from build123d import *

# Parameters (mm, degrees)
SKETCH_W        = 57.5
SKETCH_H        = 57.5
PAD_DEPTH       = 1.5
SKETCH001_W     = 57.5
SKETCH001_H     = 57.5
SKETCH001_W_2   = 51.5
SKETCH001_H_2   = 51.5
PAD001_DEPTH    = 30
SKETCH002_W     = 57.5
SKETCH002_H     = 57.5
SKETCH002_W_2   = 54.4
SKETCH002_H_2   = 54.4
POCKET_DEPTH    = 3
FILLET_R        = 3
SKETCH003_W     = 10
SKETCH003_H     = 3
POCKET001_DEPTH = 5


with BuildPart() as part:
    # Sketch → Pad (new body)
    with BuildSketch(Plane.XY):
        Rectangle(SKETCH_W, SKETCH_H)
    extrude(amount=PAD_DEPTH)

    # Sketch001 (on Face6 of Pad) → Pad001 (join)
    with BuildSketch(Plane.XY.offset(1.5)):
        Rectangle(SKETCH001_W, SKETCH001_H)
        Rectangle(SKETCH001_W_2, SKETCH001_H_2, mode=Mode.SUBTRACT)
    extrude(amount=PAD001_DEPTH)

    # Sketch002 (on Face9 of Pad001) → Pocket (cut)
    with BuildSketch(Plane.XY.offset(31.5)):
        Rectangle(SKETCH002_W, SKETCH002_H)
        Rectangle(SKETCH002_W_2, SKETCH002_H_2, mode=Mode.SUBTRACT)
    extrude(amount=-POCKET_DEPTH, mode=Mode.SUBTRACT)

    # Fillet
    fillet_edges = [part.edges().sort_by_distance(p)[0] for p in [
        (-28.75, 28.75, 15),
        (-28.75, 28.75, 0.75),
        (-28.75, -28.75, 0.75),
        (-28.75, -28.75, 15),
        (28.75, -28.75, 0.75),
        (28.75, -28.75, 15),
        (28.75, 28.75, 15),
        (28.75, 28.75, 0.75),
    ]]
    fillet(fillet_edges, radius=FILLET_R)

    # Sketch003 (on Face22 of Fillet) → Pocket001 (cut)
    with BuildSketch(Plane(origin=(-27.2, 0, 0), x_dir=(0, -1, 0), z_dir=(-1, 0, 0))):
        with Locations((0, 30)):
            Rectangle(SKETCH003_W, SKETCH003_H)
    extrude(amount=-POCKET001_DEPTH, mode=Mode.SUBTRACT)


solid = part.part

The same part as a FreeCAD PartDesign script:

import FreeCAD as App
import Part
import Sketcher
Q = App.Units.Quantity


def edges_at(feature, points):
    """Names of the edges that pass closest to the given points."""
    edges = feature.Shape.Edges
    near = lambda p: min(range(len(edges)), key=lambda i: edges[i].distToShape(Part.Vertex(*p))[0])
    return sorted({f"Edge{near(p) + 1}" for p in points})


def add_polygon(sketch, points):
    """Adds a closed chain of lines whose ends are joined by coincident constraints."""
    first, n = sketch.GeometryCount, len(points)
    for a, b in zip(points, points[1:] + points[:1]):
        sketch.addGeometry(Part.LineSegment(App.Vector(*a, 0), App.Vector(*b, 0)), False)
    for i in range(n):
        sketch.addConstraint(Sketcher.Constraint("Coincident", first + i, 2, first + (i + 1) % n, 1))

doc = App.newDocument("Part")
body = doc.addObject("PartDesign::Body", "Body")

sketch1 = doc.addObject("Sketcher::SketchObject", "Sketch")
body.addObject(sketch1)
sketch1.AttachmentSupport = (doc.XY_Plane, [""])
sketch1.MapMode = "FlatFace"
add_polygon(sketch1, [(-29, 29), (-29, -29), (29, -29), (29, 29)])
sketch1.addConstraint([
    Sketcher.Constraint("Vertical", 0),
    Sketcher.Constraint("Horizontal", 1),
    Sketcher.Constraint("Vertical", 2),
    Sketcher.Constraint("Horizontal", 3),
    Sketcher.Constraint("Symmetric", 0, 2, 2, 2, -1, 1),
    Sketcher.Constraint("Equal", 3, 0),
    Sketcher.Constraint("DistanceX", 1, 1, 1, 2, Q("57.5 mm")),
])
pad1 = doc.addObject("PartDesign::Pad", "Pad")
body.addObject(pad1)
pad1.Profile = sketch1
pad1.Length = 1.5

sketch2 = doc.addObject("Sketcher::SketchObject", "Sketch001")
body.addObject(sketch2)
sketch2.AttachmentSupport = (doc.XY_Plane, [""])
sketch2.MapMode = "FlatFace"
sketch2.AttachmentOffset = App.Placement(App.Vector(0, 0, 1.5), App.Rotation())
add_polygon(sketch2, [(-29, 29), (-29, -29), (29, -29), (29, 29)])
add_polygon(sketch2, [(26, -26), (-26, -26), (-26, 26), (26, 26)])
sketch2.addConstraint([
    Sketcher.Constraint("Vertical", 0),
    Sketcher.Constraint("Horizontal", 1),
    Sketcher.Constraint("Vertical", 2),
    Sketcher.Constraint("Horizontal", 3),
    Sketcher.Constraint("Horizontal", 4),
    Sketcher.Constraint("Vertical", 5),
    Sketcher.Constraint("Horizontal", 6),
    Sketcher.Constraint("Vertical", 7),
    Sketcher.Constraint("Symmetric", 0, 2, 2, 2, -1, 1),
    Sketcher.Constraint("Symmetric", 4, 2, 6, 2, -1, 1),
    Sketcher.Constraint("Equal", 3, 0),
    Sketcher.Constraint("Equal", 6, 5),
    Sketcher.Constraint("DistanceX", 1, 1, 1, 2, Q("57.5 mm")),
    Sketcher.Constraint("DistanceX", 4, 2, 4, 1, Q("51.5 mm")),
])
pad2 = doc.addObject("PartDesign::Pad", "Pad001")
body.addObject(pad2)
pad2.Profile = sketch2
pad2.Length = 30

sketch3 = doc.addObject("Sketcher::SketchObject", "Sketch002")
body.addObject(sketch3)
sketch3.AttachmentSupport = (doc.XY_Plane, [""])
sketch3.MapMode = "FlatFace"
sketch3.AttachmentOffset = App.Placement(App.Vector(0, 0, 31.5), App.Rotation())
add_polygon(sketch3, [(-29, 29), (-29, -29), (29, -29), (29, 29)])
add_polygon(sketch3, [(27, -27), (-27, -27), (-27, 27), (27, 27)])
sketch3.addConstraint([
    Sketcher.Constraint("Vertical", 0),
    Sketcher.Constraint("Horizontal", 1),
    Sketcher.Constraint("Vertical", 2),
    Sketcher.Constraint("Horizontal", 3),
    Sketcher.Constraint("Horizontal", 4),
    Sketcher.Constraint("Vertical", 5),
    Sketcher.Constraint("Horizontal", 6),
    Sketcher.Constraint("Vertical", 7),
    Sketcher.Constraint("Symmetric", 0, 2, 2, 2, -1, 1),
    Sketcher.Constraint("Symmetric", 4, 2, 6, 2, -1, 1),
    Sketcher.Constraint("Equal", 3, 0),
    Sketcher.Constraint("Equal", 6, 5),
    Sketcher.Constraint("DistanceX", 1, 1, 1, 2, Q("57.5 mm")),
    Sketcher.Constraint("DistanceX", 4, 2, 4, 1, Q("54.4 mm")),
])
pocket1 = doc.addObject("PartDesign::Pocket", "Pocket")
body.addObject(pocket1)
pocket1.Profile = sketch3
pocket1.Length = 3
doc.recompute()

fillet = doc.addObject("PartDesign::Fillet", "Fillet")
body.addObject(fillet)
fillet.Base = (pocket1, edges_at(pocket1, [
    (-28.75, 28.75, 14.25),
    (-28.75, 28.75, 14.25),
    (-28.75, -28.75, 14.25),
    (-28.75, -28.75, 14.25),
    (28.75, -28.75, 14.25),
    (28.75, -28.75, 14.25),
    (28.75, 28.75, 14.25),
    (28.75, 28.75, 14.25),
]))
fillet.Radius = 3

sketch4 = doc.addObject("Sketcher::SketchObject", "Sketch003")
body.addObject(sketch4)
sketch4.AttachmentSupport = (doc.YZ_Plane, [""])
sketch4.MapMode = "FlatFace"
sketch4.AttachmentOffset = App.Placement(App.Vector(0, 0, -27.2), App.Rotation())
add_polygon(sketch4, [(5, 31.5), (5, 28.5), (-5, 28.5), (-5, 31.5)])
sketch4.addConstraint([
    Sketcher.Constraint("Vertical", 0),
    Sketcher.Constraint("Horizontal", 1),
    Sketcher.Constraint("Vertical", 2),
    Sketcher.Constraint("Horizontal", 3),
    Sketcher.Constraint("DistanceX", 1, 2, 1, 1, Q("10 mm")),
    Sketcher.Constraint("DistanceY", 0, 2, 0, 1, Q("3 mm")),
    Sketcher.Constraint("DistanceX", -1, 1, 0, 2, Q("5 mm")),
    Sketcher.Constraint("DistanceY", -1, 1, 0, 2, Q("28.5 mm")),
])
pocket2 = doc.addObject("PartDesign::Pocket", "Pocket001")
body.addObject(pocket2)
pocket2.Profile = sketch4
pocket2.Length = 5
pocket2.Reversed = True

doc.recompute()
